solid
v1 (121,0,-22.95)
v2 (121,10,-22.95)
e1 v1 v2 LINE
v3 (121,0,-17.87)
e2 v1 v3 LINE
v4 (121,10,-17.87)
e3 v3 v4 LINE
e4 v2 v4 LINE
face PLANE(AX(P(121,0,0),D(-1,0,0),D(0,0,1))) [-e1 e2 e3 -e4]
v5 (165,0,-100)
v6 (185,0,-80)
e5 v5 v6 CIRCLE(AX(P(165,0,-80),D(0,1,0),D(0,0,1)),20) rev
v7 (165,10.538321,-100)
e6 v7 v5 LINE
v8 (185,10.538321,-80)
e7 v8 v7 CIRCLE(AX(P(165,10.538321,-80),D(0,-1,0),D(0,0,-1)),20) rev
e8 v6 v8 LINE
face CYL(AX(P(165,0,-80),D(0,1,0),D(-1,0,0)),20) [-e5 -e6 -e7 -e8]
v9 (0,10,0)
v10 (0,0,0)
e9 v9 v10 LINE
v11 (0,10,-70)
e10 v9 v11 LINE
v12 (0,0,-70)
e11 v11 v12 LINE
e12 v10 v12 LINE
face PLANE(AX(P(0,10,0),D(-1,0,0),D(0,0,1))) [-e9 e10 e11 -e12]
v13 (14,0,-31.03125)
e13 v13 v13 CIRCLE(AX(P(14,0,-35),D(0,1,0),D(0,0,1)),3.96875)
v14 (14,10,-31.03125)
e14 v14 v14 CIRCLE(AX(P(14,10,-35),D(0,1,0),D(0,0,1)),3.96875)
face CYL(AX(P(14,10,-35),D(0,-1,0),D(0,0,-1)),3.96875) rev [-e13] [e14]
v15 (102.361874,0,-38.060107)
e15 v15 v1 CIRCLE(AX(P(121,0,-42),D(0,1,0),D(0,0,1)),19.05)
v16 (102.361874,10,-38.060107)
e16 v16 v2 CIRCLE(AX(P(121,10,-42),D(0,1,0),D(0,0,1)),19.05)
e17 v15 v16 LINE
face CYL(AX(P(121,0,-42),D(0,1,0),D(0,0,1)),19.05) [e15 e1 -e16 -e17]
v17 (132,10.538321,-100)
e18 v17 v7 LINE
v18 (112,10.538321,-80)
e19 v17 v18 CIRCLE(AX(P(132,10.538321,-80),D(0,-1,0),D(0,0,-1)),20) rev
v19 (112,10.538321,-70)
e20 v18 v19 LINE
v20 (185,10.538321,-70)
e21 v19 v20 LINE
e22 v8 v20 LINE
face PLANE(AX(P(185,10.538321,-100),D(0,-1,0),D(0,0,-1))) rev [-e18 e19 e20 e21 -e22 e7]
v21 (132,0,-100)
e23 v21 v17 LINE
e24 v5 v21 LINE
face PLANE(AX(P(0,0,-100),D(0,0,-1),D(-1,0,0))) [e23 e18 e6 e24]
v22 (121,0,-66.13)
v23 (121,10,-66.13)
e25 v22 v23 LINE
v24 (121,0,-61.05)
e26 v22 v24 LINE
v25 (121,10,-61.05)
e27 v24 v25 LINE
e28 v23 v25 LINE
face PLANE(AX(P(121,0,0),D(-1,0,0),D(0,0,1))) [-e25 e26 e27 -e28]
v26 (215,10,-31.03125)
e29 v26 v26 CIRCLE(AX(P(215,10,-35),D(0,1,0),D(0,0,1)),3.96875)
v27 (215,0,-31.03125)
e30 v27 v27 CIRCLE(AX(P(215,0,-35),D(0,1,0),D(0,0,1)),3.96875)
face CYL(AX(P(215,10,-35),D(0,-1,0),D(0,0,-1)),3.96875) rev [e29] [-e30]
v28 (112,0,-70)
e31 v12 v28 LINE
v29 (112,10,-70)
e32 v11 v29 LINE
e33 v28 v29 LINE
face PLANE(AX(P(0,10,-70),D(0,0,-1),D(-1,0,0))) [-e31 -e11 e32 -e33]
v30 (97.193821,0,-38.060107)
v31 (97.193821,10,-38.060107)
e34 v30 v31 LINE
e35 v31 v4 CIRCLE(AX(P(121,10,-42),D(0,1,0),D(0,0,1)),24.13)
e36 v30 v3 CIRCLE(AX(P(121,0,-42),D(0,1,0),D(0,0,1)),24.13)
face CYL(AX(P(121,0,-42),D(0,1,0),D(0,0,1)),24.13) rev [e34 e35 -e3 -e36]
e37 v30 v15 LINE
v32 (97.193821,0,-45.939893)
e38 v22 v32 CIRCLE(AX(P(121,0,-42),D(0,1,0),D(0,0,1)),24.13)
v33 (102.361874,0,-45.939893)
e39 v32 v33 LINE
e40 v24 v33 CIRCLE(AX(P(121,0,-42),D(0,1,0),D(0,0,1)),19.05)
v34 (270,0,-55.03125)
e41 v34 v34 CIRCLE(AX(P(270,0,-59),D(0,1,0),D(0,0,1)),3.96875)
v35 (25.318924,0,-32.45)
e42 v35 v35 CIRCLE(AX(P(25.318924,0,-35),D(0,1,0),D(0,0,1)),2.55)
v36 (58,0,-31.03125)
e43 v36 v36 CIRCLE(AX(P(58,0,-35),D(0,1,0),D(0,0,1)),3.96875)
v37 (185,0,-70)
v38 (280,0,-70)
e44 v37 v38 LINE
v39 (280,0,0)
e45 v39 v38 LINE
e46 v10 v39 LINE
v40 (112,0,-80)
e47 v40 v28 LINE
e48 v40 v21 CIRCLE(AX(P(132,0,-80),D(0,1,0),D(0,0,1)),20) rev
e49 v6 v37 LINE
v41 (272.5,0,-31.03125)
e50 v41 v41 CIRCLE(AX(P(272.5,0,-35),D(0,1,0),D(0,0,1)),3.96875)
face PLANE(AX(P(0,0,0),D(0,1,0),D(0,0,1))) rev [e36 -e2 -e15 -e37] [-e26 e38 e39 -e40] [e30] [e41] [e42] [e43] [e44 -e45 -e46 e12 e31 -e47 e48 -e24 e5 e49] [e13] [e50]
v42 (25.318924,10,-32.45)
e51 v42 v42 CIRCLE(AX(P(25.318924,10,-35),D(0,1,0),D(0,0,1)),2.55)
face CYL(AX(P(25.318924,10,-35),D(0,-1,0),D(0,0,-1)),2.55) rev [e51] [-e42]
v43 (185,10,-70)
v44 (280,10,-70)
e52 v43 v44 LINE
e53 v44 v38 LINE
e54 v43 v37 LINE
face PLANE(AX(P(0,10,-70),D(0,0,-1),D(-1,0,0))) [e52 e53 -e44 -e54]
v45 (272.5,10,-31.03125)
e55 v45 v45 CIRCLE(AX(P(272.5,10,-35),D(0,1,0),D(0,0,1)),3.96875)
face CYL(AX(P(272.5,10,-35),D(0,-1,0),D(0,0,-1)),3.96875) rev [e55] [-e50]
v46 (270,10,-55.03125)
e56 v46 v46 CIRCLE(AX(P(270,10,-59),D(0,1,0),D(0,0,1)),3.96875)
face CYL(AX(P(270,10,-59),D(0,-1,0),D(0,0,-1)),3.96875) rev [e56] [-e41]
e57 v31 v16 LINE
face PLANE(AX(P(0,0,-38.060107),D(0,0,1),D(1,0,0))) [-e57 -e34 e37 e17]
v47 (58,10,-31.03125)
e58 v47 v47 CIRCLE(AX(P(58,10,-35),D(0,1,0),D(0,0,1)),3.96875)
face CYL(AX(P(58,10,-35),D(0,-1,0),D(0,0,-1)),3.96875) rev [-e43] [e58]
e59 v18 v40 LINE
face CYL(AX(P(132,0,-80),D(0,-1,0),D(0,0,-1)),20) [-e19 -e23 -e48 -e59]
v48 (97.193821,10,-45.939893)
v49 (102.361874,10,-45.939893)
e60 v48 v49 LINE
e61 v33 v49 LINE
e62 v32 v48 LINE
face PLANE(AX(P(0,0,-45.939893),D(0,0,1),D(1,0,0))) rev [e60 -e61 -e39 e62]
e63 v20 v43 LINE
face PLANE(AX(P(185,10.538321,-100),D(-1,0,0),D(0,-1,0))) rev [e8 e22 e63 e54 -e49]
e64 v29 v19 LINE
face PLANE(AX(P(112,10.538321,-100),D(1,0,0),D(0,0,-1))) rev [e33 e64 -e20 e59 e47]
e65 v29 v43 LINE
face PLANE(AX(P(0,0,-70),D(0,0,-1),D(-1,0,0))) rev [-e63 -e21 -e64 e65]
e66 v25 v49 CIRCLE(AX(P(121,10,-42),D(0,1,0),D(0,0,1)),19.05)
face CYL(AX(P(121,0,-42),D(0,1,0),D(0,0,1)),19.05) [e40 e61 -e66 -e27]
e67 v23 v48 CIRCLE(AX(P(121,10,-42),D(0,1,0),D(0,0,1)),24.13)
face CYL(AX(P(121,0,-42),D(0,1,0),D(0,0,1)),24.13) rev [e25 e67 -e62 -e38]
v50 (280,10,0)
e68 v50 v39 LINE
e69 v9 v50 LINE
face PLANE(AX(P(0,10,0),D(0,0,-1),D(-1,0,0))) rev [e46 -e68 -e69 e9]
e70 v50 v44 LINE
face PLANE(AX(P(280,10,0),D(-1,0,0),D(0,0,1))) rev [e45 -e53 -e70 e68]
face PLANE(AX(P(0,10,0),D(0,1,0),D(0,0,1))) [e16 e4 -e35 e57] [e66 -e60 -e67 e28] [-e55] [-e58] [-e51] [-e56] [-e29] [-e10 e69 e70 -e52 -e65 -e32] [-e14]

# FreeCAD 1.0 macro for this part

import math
import FreeCAD as App
import Part
import Sketcher


def edges_at(feature, points):
    """Names of the edges that pass closest to the given points."""
    edges = feature.Shape.Edges
    near = lambda p: min(range(len(edges)), key=lambda i: edges[i].distToShape(Part.Vertex(*p))[0])
    return sorted({f"Edge{near(p) + 1}" for p in points})


def add_polygon(sketch, points):
    """Adds a closed chain of lines whose ends are joined by coincident constraints."""
    first, n = sketch.GeometryCount, len(points)
    for a, b in zip(points, points[1:] + points[:1]):
        sketch.addGeometry(Part.LineSegment(App.Vector(*a, 0), App.Vector(*b, 0)), False)
    for i in range(n):
        sketch.addConstraint(Sketcher.Constraint("Coincident", first + i, 2, first + (i + 1) % n, 1))

doc = App.newDocument("Part")
body = doc.addObject("PartDesign::Body", "Body")

# Sketch on XZ plane
sketch1 = body.newObject("Sketcher::SketchObject", "Sketch")
sketch1.AttachmentSupport = (doc.getObject("XZ_Plane"), [""])
sketch1.MapMode = "FlatFace"
add_polygon(sketch1, [(0, -70), (0, 0), (280, 0), (280, -70)])  # lines 0-3
sketch1.addGeometry(Part.Circle(App.Vector(14, -35, 0), App.Vector(0, 0, 1), 3.96875), False)  # 4
sketch1.addGeometry(Part.Circle(App.Vector(25.318924, -35, 0), App.Vector(0, 0, 1), 2.55), False)  # 5
sketch1.addGeometry(Part.Circle(App.Vector(58, -35, 0), App.Vector(0, 0, 1), 3.96875), False)  # 6
sketch1.addGeometry(Part.Circle(App.Vector(215, -35, 0), App.Vector(0, 0, 1), 3.96875), False)  # 7
sketch1.addGeometry(Part.Circle(App.Vector(272.5, -35, 0), App.Vector(0, 0, 1), 3.96875), False)  # 8
sketch1.addGeometry(Part.Circle(App.Vector(270, -59, 0), App.Vector(0, 0, 1), 3.96875), False)  # 9
sketch1.addConstraint([
    Sketcher.Constraint("Vertical", 0),
    Sketcher.Constraint("Horizontal", 1),
    Sketcher.Constraint("Vertical", 2),
    Sketcher.Constraint("Horizontal", 3),
    Sketcher.Constraint("Coincident", 0, 2, -1, 1),
    Sketcher.Constraint("Equal", 4, 6),
    Sketcher.Constraint("Equal", 6, 7),
    Sketcher.Constraint("Equal", 7, 8),
    Sketcher.Constraint("Equal", 8, 9),
    Sketcher.Constraint("Horizontal", 4, 3, 5, 3),
    Sketcher.Constraint("Horizontal", 5, 3, 6, 3),
    Sketcher.Constraint("Horizontal", 6, 3, 7, 3),
    Sketcher.Constraint("Horizontal", 7, 3, 8, 3),
    Sketcher.Constraint("Diameter", 5, 5.1),
    Sketcher.Constraint("DistanceX", 1, 1, 1, 2, 280.0),
    Sketcher.Constraint("DistanceY", 0, 1, 0, 2, 70.0),
    Sketcher.Constraint("DistanceX", -1, 1, 4, 3, 14.0),
    Sketcher.Constraint("DistanceY", 4, 3, -1, 1, 35.0),
    Sketcher.Constraint("DistanceX", -1, 1, 6, 3, 58.0),
    Sketcher.Constraint("DistanceX", -1, 1, 7, 3, 215.0),
    Sketcher.Constraint("DistanceX", -1, 1, 9, 3, 270.0),
    Sketcher.Constraint("DistanceY", 9, 3, -1, 1, 59.0),
    Sketcher.Constraint("Diameter", 4, 7.9375),
    Sketcher.Constraint("DistanceX", -1, 1, 8, 3, 272.5),
    Sketcher.Constraint("DistanceX", -1, 1, 5, 3, 25.318924),
])
pad1 = body.newObject("PartDesign::Pad", "Pad")
pad1.Profile = sketch1
pad1.Length = 10
pad1.Reversed = True

# Sketch on XY plane
sketch2 = body.newObject("Sketcher::SketchObject", "Sketch001")
sketch2.AttachmentSupport = (doc.getObject("XY_Plane"), [""])
sketch2.MapMode = "FlatFace"
sketch2.AttachmentOffset = App.Placement(App.Vector(0, 0, -70), App.Rotation())
add_polygon(sketch2, [(185, 10.538321), (185, 0), (112, 0), (112, 10.538321)])  # lines 0-3
sketch2.addConstraint([
    Sketcher.Constraint("Vertical", 0),
    Sketcher.Constraint("Horizontal", 1),
    Sketcher.Constraint("Vertical", 2),
    Sketcher.Constraint("Horizontal", 3),
    Sketcher.Constraint("PointOnObject", 0, 2, -1),
    Sketcher.Constraint("DistanceX", 1, 2, 1, 1, 73.0),
    Sketcher.Constraint("DistanceX", -1, 1, 0, 2, 185.0),
    Sketcher.Constraint("DistanceY", 0, 2, 0, 1, 10.538321),
])
pad2 = body.newObject("PartDesign::Pad", "Pad001")
pad2.Profile = sketch2
pad2.Length = 30
pad2.Reversed = True
doc.recompute()

fillet = body.newObject("PartDesign::Fillet", "Fillet")
fillet.Base = (pad2, edges_at(pad2, [(185, 5.269, -100)]))
fillet.Radius = 20
doc.recompute()

fillet2 = body.newObject("PartDesign::Fillet", "Fillet001")
fillet2.Base = (fillet, edges_at(fillet, [(112, 5.269, -100)]))
fillet2.Radius = 20

# Sketch on XZ plane
sketch3 = body.newObject("Sketcher::SketchObject", "Sketch002")
sketch3.AttachmentSupport = (doc.getObject("XZ_Plane"), [""])
sketch3.MapMode = "FlatFace"
sketch3.AttachmentOffset = App.Placement(App.Vector(0, 0, -10), App.Rotation())
sketch3.addGeometry([
    Part.LineSegment(App.Vector(121, -61.05, 0), App.Vector(121, -66.13, 0)),
    Part.ArcOfCircle(Part.Circle(App.Vector(121, -42, 0), App.Vector(0, 0, 1), 24.13), math.radians(-170.602797), math.radians(-90)),
    Part.LineSegment(App.Vector(97.193821, -45.939893, 0), App.Vector(102.361874, -45.939893, 0)),
    Part.ArcOfCircle(Part.Circle(App.Vector(121, -42, 0), App.Vector(0, 0, 1), 19.05), math.radians(-168.064024), math.radians(-90)),
], False)
sketch3.addConstraint([
    Sketcher.Constraint("Coincident", 0, 2, 1, 2),
    Sketcher.Constraint("Coincident", 1, 1, 2, 1),
    Sketcher.Constraint("Coincident", 2, 2, 3, 1),
    Sketcher.Constraint("Coincident", 3, 2, 0, 1),
    Sketcher.Constraint("Vertical", 0),
    Sketcher.Constraint("Horizontal", 2),
    Sketcher.Constraint("Coincident", 3, 3, 1, 3),
    Sketcher.Constraint("Vertical", 3, 3, 0, 2),
    Sketcher.Constraint("Radius", 1, 24.13),
    Sketcher.Constraint("Radius", 3, 19.05),
    Sketcher.Constraint("DistanceX", -1, 1, 1, 3, 121.0),
    Sketcher.Constraint("DistanceY", 1, 3, -1, 1, 42.0),
    Sketcher.Constraint("DistanceX", 2, 1, 2, 2, 5.168053),
])
pocket1 = body.newObject("PartDesign::Pocket", "Pocket")
pocket1.Profile = sketch3
pocket1.Type = "ThroughAll"
pocket1.Reversed = True

# Sketch on XZ plane
sketch4 = body.newObject("Sketcher::SketchObject", "Sketch003")
sketch4.AttachmentSupport = (doc.getObject("XZ_Plane"), [""])
sketch4.MapMode = "FlatFace"
sketch4.AttachmentOffset = App.Placement(App.Vector(0, 0, -10), App.Rotation())
sketch4.addGeometry([
    Part.LineSegment(App.Vector(121, -17.87, 0), App.Vector(121, -22.95, 0)),
    Part.ArcOfCircle(Part.Circle(App.Vector(121, -42, 0), App.Vector(0, 0, 1), 19.05), math.radians(90), math.radians(168.064024)),
    Part.LineSegment(App.Vector(102.361874, -38.060107, 0), App.Vector(97.193821, -38.060107, 0)),
    Part.ArcOfCircle(Part.Circle(App.Vector(121, -42, 0), App.Vector(0, 0, 1), 24.13), math.radians(90), math.radians(170.602797)),
], False)
sketch4.addConstraint([
    Sketcher.Constraint("Coincident", 0, 2, 1, 1),
    Sketcher.Constraint("Coincident", 1, 2, 2, 1),
    Sketcher.Constraint("Coincident", 2, 2, 3, 2),
    Sketcher.Constraint("Coincident", 3, 1, 0, 1),
    Sketcher.Constraint("Vertical", 0),
    Sketcher.Constraint("Horizontal", 2),
    Sketcher.Constraint("Coincident", 3, 3, 1, 3),
    Sketcher.Constraint("Vertical", 3, 3, 0, 2),
    Sketcher.Constraint("Radius", 1, 19.05),
    Sketcher.Constraint("Radius", 3, 24.13),
    Sketcher.Constraint("DistanceX", -1, 1, 1, 3, 121.0),
    Sketcher.Constraint("DistanceY", 1, 3, -1, 1, 42.0),
    Sketcher.Constraint("DistanceX", 2, 2, 2, 1, 5.168053),
])
pocket2 = body.newObject("PartDesign::Pocket", "Pocket001")
pocket2.Profile = sketch4
pocket2.Type = "ThroughAll"
pocket2.Reversed = True

doc.recompute()
